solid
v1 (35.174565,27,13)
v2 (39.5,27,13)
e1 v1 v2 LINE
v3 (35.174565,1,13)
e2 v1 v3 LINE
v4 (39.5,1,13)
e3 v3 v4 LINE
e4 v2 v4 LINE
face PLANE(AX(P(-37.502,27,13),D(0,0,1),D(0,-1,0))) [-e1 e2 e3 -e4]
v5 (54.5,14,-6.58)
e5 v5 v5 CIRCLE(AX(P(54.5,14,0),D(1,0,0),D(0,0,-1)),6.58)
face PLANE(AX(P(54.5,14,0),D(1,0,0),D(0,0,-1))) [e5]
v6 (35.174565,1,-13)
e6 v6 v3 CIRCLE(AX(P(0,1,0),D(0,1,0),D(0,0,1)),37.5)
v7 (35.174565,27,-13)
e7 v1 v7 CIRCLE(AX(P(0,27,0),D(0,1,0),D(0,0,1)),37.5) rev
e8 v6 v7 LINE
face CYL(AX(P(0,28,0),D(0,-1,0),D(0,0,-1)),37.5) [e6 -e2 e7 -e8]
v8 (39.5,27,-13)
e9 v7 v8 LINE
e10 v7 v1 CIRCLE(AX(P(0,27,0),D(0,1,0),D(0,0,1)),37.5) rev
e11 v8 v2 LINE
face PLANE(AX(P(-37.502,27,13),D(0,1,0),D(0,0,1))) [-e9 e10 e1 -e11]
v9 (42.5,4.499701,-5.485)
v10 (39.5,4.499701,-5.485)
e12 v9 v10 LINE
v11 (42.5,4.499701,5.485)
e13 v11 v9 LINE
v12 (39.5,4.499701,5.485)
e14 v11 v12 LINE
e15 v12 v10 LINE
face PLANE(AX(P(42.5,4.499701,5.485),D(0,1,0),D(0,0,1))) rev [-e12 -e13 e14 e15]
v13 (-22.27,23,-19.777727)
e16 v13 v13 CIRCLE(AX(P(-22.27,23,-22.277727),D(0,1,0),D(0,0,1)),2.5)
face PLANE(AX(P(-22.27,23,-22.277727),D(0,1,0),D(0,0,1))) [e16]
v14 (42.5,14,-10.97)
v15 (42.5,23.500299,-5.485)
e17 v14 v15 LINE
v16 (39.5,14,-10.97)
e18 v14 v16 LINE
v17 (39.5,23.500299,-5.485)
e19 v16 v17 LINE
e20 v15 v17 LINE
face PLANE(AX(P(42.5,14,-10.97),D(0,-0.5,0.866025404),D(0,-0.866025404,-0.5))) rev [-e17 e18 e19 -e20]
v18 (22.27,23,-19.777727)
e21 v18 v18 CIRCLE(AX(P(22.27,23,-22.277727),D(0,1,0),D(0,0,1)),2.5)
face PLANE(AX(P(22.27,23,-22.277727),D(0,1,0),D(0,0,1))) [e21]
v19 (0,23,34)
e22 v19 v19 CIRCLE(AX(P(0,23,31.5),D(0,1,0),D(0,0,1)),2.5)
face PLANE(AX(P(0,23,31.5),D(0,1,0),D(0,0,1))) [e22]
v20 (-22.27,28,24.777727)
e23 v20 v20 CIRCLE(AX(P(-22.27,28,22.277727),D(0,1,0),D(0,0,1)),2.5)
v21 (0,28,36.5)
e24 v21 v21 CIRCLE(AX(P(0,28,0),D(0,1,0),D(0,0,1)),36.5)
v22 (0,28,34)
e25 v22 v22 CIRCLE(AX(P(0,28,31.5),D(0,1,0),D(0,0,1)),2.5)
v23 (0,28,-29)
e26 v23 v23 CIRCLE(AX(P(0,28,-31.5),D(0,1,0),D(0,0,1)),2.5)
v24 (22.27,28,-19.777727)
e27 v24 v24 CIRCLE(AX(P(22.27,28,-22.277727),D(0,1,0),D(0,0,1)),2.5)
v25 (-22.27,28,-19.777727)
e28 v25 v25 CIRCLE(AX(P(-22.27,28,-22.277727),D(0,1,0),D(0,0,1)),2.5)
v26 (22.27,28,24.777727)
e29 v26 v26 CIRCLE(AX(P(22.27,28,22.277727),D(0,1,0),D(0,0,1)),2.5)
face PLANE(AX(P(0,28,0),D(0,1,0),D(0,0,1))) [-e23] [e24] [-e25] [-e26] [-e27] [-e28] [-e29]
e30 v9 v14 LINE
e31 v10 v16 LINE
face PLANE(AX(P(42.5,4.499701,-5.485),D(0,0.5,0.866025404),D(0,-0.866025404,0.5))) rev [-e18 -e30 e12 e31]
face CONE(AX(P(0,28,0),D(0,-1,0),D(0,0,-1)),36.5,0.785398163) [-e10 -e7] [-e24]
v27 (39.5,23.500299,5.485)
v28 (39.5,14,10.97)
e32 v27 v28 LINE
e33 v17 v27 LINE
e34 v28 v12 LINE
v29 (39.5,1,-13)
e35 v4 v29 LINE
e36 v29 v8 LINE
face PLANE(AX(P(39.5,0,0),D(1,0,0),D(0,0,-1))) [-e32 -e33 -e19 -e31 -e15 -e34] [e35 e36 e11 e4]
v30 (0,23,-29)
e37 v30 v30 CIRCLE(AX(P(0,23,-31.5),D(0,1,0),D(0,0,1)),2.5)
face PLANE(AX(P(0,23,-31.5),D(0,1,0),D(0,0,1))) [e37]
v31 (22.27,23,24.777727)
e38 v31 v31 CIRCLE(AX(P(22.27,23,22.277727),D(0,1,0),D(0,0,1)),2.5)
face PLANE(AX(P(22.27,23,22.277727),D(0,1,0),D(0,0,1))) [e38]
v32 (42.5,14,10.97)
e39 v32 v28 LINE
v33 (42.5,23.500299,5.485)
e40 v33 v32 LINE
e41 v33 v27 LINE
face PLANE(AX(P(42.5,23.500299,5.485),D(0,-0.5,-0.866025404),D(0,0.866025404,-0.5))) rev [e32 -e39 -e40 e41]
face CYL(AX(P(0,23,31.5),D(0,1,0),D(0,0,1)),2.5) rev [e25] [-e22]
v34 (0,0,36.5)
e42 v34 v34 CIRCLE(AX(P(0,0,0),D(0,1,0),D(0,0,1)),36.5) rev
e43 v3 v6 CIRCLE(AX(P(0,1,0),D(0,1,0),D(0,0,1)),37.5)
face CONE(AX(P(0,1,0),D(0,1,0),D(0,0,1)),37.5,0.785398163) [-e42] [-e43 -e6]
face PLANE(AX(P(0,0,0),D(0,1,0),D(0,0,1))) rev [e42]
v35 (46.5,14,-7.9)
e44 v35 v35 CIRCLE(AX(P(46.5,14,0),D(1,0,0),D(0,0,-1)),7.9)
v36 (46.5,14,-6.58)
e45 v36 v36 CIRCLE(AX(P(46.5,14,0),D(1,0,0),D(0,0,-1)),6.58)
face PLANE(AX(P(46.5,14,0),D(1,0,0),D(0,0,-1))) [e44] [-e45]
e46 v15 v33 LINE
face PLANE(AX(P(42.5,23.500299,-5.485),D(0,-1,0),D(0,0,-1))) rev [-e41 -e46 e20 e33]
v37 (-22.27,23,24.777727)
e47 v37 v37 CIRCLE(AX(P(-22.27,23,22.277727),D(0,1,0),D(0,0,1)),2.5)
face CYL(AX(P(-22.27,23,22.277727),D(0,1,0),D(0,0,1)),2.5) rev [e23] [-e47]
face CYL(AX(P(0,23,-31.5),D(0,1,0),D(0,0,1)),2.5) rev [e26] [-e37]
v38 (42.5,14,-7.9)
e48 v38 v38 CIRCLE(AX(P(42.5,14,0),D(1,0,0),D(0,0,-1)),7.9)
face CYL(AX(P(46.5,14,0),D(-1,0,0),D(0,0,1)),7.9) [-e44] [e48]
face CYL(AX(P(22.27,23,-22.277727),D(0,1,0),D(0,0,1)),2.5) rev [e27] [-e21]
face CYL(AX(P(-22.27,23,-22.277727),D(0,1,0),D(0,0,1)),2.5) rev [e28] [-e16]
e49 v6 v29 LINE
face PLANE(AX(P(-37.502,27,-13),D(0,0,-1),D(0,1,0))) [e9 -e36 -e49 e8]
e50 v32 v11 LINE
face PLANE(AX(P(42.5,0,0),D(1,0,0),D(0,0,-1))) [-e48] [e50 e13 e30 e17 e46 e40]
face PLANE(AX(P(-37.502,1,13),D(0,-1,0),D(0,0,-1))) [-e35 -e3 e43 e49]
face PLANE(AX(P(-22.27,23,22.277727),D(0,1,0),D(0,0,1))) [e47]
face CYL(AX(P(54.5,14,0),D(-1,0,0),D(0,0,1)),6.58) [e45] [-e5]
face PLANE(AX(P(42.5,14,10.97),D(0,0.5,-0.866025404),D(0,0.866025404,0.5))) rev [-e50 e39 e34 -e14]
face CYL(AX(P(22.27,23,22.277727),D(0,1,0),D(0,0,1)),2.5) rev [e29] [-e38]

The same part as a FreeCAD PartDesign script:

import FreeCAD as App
import Part
import Sketcher
from FreeCAD import Vector
Q = App.Units.Quantity


def edges_at(feature, points):
    """Names of the edges that pass closest to the given points."""
    edges = feature.Shape.Edges
    near = lambda p: min(range(len(edges)), key=lambda i: edges[i].distToShape(Part.Vertex(*p))[0])
    return sorted({f"Edge{near(p) + 1}" for p in points})


def add_polygon(sketch, points):
    """Adds a closed chain of lines whose ends are joined by coincident constraints."""
    first, n = sketch.GeometryCount, len(points)
    for a, b in zip(points, points[1:] + points[:1]):
        sketch.addGeometry(Part.LineSegment(App.Vector(*a, 0), App.Vector(*b, 0)), False)
    for i in range(n):
        sketch.addConstraint(Sketcher.Constraint("Coincident", first + i, 2, first + (i + 1) % n, 1))

doc = App.newDocument("Part")
body = doc.addObject("PartDesign::Body", "Body")

# Sketch on XZ plane
sketch1 = doc.addObject("Sketcher::SketchObject", "Sketch")
body.addObject(sketch1)
sketch1.AttachmentSupport = (doc.XZ_Plane, [""])
sketch1.MapMode = "FlatFace"
sketch1.addGeometry(Part.Circle(Vector(0, 0, 0), Vector(0, 0, 1), 38), False)
sketch1.addConstraint([
    Sketcher.Constraint("Coincident", 0, 3, -1, 1),
    Sketcher.Constraint("Diameter", 0, Q("75 mm")),
])
pad1 = doc.addObject("PartDesign::Pad", "Pad")
body.addObject(pad1)
pad1.Profile = sketch1
pad1.Length = 28
pad1.Reversed = True
doc.recompute()

chamfer = doc.addObject("PartDesign::Chamfer", "Chamfer")
body.addObject(chamfer)
chamfer.Base = (pad1, edges_at(pad1, [(0, 0, -37.5), (0, 28, -37.5)]))
chamfer.Size = 1

# Sketch on YZ plane
sketch2 = doc.addObject("Sketcher::SketchObject", "Sketch001")
body.addObject(sketch2)
sketch2.AttachmentSupport = (doc.YZ_Plane, [""])
sketch2.MapMode = "FlatFace"
sketch2.AttachmentOffset = App.Placement(Vector(0, 0, 39.5), App.Rotation())
add_polygon(sketch2, [(27, 13), (1, 13), (1, -13), (27, -13)])  # lines 0-3
sketch2.addConstraint([
    Sketcher.Constraint("Horizontal", 0),
    Sketcher.Constraint("Vertical", 1),
    Sketcher.Constraint("Horizontal", 2),
    Sketcher.Constraint("Vertical", 3),
    Sketcher.Constraint("Equal", 2, 1),
    Sketcher.Constraint("DistanceX", 0, 2, 0, 1, Q("26 mm")),
    Sketcher.Constraint("DistanceX", -1, 1, 0, 2, Q("1 mm")),
    Sketcher.Constraint("DistanceY", -1, 1, 0, 2, Q("13 mm")),
])
pad2 = doc.addObject("PartDesign::Pad", "Pad001")
body.addObject(pad2)
pad2.Profile = sketch2
pad2.Type = "UpToFirst"
pad2.Reversed = True

# Sketch on YZ plane
sketch3 = doc.addObject("Sketcher::SketchObject", "Sketch002")
body.addObject(sketch3)
sketch3.AttachmentSupport = (doc.YZ_Plane, [""])
sketch3.MapMode = "FlatFace"
sketch3.AttachmentOffset = App.Placement(Vector(0, 0, 39.5), App.Rotation())
add_polygon(sketch3, [(14, -11), (24, -5), (24, 5), (14, 11), (4, 5), (4, -5)])  # lines 0-5
sketch3.addConstraint([
    Sketcher.Constraint("Vertical", 1),
    Sketcher.Constraint("Vertical", 4),
    Sketcher.Constraint("Symmetric", 2, 2, 5, 2, -1),
    Sketcher.Constraint("Parallel", 0, 3),
    Sketcher.Constraint("Parallel", 2, 5),
    Sketcher.Constraint("Horizontal", 1, 2, 3, 2),
    Sketcher.Constraint("Horizontal", 0, 2, 4, 2),
    Sketcher.Constraint("Angle", 0, Q("30 deg")),
    Sketcher.Constraint("DistanceX", -1, 1, 2, 2, Q("14 mm")),
    Sketcher.Constraint("DistanceY", 1, 1, 1, 2, Q("10.97 mm")),
    Sketcher.Constraint("Distance", 0, Q("10.97 mm")),
])
pad3 = doc.addObject("PartDesign::Pad", "Pad002")
body.addObject(pad3)
pad3.Profile = sketch3
pad3.Length = 3

# Sketch on YZ plane
sketch4 = doc.addObject("Sketcher::SketchObject", "Sketch003")
body.addObject(sketch4)
sketch4.AttachmentSupport = (doc.YZ_Plane, [""])
sketch4.MapMode = "FlatFace"
sketch4.AttachmentOffset = App.Placement(Vector(0, 0, 42.5), App.Rotation())
sketch4.addGeometry(Part.Circle(Vector(14, 0, 0), Vector(0, 0, 1), 8), False)
sketch4.addConstraint([
    Sketcher.Constraint("PointOnObject", 0, 3, -1),
    Sketcher.Constraint("Diameter", 0, Q("15.8 mm")),
    Sketcher.Constraint("DistanceX", -1, 1, 0, 3, Q("14 mm")),
])
pad4 = doc.addObject("PartDesign::Pad", "Pad003")
body.addObject(pad4)
pad4.Profile = sketch4
pad4.Length = 4

# Sketch on YZ plane
sketch5 = doc.addObject("Sketcher::SketchObject", "Sketch004")
body.addObject(sketch5)
sketch5.AttachmentSupport = (doc.YZ_Plane, [""])
sketch5.MapMode = "FlatFace"
sketch5.AttachmentOffset = App.Placement(Vector(0, 0, 46.5), App.Rotation())
sketch5.addGeometry(Part.Circle(Vector(14, 0, 0), Vector(0, 0, 1), 7), False)
sketch5.addConstraint([
    Sketcher.Constraint("PointOnObject", 0, 3, -1),
    Sketcher.Constraint("Diameter", 0, Q("13.16 mm")),
    Sketcher.Constraint("DistanceX", -1, 1, 0, 3, Q("14 mm")),
])
pad5 = doc.addObject("PartDesign::Pad", "Pad004")
body.addObject(pad5)
pad5.Profile = sketch5
pad5.Length = 8

# Sketch on XZ plane
sketch6 = doc.addObject("Sketcher::SketchObject", "Sketch005")
body.addObject(sketch6)
sketch6.AttachmentSupport = (doc.XZ_Plane, [""])
sketch6.MapMode = "FlatFace"
sketch6.AttachmentOffset = App.Placement(Vector(0, 0, -28), App.Rotation())
sketch6.addGeometry([
    Part.Circle(Vector(0, -31.5, 0), Vector(0, 0, 1), 2.5),  # 0
    Part.Circle(Vector(0, 31.5, 0), Vector(0, 0, 1), 2.5),  # 1
    Part.Circle(Vector(22.3, 22.3, 0), Vector(0, 0, 1), 2.5),  # 2
    Part.Circle(Vector(-22.3, 22.3, 0), Vector(0, 0, 1), 2.5),  # 3
    Part.Circle(Vector(-22.3, -22.3, 0), Vector(0, 0, 1), 2.5),  # 4
    Part.Circle(Vector(22.3, -22.3, 0), Vector(0, 0, 1), 2.5),  # 5
], False)
sketch6.addConstraint([
    Sketcher.Constraint("Equal", 0, 1),
    Sketcher.Constraint("Equal", 1, 2),
    Sketcher.Constraint("Equal", 2, 3),
    Sketcher.Constraint("Equal", 3, 4),
    Sketcher.Constraint("Equal", 4, 5),
    Sketcher.Constraint("Symmetric", 0, 3, 1, 3, -1, 1),
    Sketcher.Constraint("Symmetric", 2, 3, 4, 3, -1, 1),
    Sketcher.Constraint("Symmetric", 3, 3, 5, 3, -1, 1),
    Sketcher.Constraint("Symmetric", 2, 3, 3, 3, -2),
    Sketcher.Constraint("PointOnObject", 0, 3, -2),
    Sketcher.Constraint("Diameter", 0, Q("5 mm")),
    Sketcher.Constraint("DistanceY", 0, 3, 1, 3, Q("63 mm")),
    Sketcher.Constraint("DistanceX", -1, 1, 2, 3, Q("22.27 mm")),
    Sketcher.Constraint("DistanceY", -1, 1, 2, 3, Q("22.277727 mm")),
])
pocket1 = doc.addObject("PartDesign::Pocket", "Pocket")
body.addObject(pocket1)
pocket1.Profile = sketch6
pocket1.Length = 5
pocket1.Reversed = True

doc.recompute()
